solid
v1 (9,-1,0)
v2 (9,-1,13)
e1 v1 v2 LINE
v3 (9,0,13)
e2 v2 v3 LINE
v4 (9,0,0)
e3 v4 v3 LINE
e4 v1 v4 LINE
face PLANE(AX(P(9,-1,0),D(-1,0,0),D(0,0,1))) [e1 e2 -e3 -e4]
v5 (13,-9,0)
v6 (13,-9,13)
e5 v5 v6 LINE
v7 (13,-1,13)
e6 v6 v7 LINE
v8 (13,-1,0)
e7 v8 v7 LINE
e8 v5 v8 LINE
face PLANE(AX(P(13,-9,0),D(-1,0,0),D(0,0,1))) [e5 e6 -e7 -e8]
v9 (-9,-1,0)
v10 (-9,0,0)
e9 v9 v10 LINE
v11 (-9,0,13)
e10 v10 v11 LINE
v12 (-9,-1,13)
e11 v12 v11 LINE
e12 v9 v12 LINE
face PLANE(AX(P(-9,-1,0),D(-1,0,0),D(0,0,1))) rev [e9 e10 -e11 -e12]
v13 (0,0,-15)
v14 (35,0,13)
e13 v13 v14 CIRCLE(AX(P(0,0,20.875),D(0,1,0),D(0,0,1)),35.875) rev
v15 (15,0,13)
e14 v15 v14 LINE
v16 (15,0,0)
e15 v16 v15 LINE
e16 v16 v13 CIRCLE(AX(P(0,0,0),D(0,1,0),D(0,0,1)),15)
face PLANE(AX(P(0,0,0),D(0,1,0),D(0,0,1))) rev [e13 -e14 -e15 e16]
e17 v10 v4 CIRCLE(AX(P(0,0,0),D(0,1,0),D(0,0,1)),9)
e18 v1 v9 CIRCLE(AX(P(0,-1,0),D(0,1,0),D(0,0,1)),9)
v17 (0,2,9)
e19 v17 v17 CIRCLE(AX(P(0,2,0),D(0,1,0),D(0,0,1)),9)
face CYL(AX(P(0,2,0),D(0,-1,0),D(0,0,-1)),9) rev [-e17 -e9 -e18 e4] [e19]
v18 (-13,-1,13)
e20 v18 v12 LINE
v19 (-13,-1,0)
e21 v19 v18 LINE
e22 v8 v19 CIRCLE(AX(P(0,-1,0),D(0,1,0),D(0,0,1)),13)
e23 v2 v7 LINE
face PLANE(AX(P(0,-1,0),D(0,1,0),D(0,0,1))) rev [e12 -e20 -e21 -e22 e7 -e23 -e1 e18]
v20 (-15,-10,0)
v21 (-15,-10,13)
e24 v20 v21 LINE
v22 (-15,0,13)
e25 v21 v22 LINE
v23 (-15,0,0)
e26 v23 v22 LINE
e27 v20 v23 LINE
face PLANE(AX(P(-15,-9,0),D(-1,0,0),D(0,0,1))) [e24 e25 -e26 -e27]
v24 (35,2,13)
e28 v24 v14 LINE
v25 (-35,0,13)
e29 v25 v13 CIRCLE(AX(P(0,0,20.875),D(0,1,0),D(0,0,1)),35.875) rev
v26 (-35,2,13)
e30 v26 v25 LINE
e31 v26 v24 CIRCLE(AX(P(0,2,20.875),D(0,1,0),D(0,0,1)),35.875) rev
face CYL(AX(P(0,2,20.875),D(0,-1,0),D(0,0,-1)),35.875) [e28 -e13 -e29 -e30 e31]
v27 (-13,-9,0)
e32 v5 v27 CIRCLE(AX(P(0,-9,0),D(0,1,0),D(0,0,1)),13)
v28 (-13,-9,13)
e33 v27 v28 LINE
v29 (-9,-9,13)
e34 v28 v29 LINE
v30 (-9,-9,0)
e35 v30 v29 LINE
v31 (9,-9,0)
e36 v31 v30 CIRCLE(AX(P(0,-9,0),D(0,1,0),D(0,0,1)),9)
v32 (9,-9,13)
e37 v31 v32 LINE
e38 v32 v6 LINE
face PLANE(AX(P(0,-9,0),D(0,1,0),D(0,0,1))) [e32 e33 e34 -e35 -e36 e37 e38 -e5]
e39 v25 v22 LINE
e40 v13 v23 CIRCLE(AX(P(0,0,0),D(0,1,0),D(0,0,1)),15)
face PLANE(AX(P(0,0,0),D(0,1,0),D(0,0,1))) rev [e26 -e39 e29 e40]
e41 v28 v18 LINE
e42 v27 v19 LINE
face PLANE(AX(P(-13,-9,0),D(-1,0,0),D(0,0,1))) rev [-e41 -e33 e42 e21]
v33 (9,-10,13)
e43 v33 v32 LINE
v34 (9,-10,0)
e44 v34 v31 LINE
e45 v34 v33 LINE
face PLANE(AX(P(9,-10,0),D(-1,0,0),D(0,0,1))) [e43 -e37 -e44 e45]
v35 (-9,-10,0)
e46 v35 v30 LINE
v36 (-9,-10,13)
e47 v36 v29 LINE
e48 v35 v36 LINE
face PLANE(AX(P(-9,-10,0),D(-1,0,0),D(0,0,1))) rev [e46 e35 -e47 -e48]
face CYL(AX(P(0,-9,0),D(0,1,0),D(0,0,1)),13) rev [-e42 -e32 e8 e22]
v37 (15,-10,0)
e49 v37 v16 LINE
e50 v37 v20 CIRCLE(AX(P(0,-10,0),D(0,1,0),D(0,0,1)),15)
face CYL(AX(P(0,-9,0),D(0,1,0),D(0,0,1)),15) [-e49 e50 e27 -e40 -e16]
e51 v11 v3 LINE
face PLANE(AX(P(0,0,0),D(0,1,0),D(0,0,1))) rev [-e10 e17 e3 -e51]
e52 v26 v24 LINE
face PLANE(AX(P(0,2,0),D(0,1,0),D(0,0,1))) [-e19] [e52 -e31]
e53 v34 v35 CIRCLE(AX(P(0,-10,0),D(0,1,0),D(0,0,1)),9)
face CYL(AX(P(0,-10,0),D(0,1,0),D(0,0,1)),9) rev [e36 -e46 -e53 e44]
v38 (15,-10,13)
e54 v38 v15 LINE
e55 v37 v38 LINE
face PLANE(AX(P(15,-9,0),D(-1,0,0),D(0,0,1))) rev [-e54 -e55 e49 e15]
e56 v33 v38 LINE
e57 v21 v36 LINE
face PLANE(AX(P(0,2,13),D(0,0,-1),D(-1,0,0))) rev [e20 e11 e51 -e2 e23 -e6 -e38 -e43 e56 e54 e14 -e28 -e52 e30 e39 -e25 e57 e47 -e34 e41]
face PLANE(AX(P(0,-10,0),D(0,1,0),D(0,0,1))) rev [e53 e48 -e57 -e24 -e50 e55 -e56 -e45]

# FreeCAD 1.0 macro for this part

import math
import FreeCAD as App
import Part
import Sketcher

doc = App.newDocument("Part")
body = doc.addObject("PartDesign::Body", "Body")

sketch1 = body.newObject("Sketcher::SketchObject", "Sketch")
sketch1.AttachmentSupport = (doc.getObject("XZ_Plane"), [""])
sketch1.MapMode = "FlatFace"
sketch1.addGeometry(Part.LineSegment(App.Vector(-35, 13, 0), App.Vector(35, 13, 0)), False)
sketch1.addGeometry(Part.ArcOfCircle(Part.Circle(App.Vector(0, 21, 0), App.Vector(0, 0, 1), 36), math.radians(-167), math.radians(-13)), False)
sketch1.addGeometry(Part.Circle(App.Vector(0, 0, 0), App.Vector(0, 0, 1), 9), False)
sketch1.addConstraint(Sketcher.Constraint("Coincident", 0, 1, 1, 1))
sketch1.addConstraint(Sketcher.Constraint("Coincident", 1, 2, 0, 2))
sketch1.addConstraint(Sketcher.Constraint("Horizontal", 0))
sketch1.addConstraint(Sketcher.Constraint("Coincident", 2, 3, -1, 1))
sketch1.addConstraint(Sketcher.Constraint("PointOnObject", 1, 3, -2))
sketch1.addConstraint(Sketcher.Constraint("Diameter", 2, 18.0))
sketch1.addConstraint(Sketcher.Constraint("DistanceX", 0, 1, 0, 2, 70.0))
sketch1.addConstraint(Sketcher.Constraint("DistanceY", -1, 1, 0, 1, 13.0))
sketch1.addConstraint(Sketcher.Constraint("Radius", 1, 35.875))
pad1 = body.newObject("PartDesign::Pad", "Pad")
pad1.Profile = sketch1
pad1.Length = 2
pad1.Reversed = True

sketch2 = body.newObject("Sketcher::SketchObject", "Sketch001")
sketch2.AttachmentSupport = (doc.getObject("XZ_Plane"), [""])
sketch2.MapMode = "FlatFace"
sketch2.addGeometry(Part.ArcOfCircle(Part.Circle(App.Vector(0, 0, 0), App.Vector(0, 0, 1), 13), math.radians(-90), math.radians(0)), False)
sketch2.addGeometry(Part.LineSegment(App.Vector(13, 0, 0), App.Vector(13, 13, 0)), False)
sketch2.addGeometry(Part.LineSegment(App.Vector(13, 13, 0), App.Vector(15, 13, 0)), False)
sketch2.addGeometry(Part.LineSegment(App.Vector(15, 13, 0), App.Vector(15, 0, 0)), False)
sketch2.addGeometry(Part.ArcOfCircle(Part.Circle(App.Vector(0, 0, 0), App.Vector(0, 0, 1), 15), math.radians(-51), math.radians(0)), False)
sketch2.addGeometry(Part.ArcOfCircle(Part.Circle(App.Vector(0, 0, 0), App.Vector(0, 0, 1), 15), math.radians(-90), math.radians(-51)), False)
sketch2.addGeometry(Part.ArcOfCircle(Part.Circle(App.Vector(0, 0, 0), App.Vector(0, 0, 1), 15), math.radians(-129), math.radians(-90)), False)
sketch2.addGeometry(Part.ArcOfCircle(Part.Circle(App.Vector(0, 0, 0), App.Vector(0, 0, 1), 15), math.radians(180), math.radians(231)), False)
sketch2.addGeometry(Part.LineSegment(App.Vector(-15, 0, 0), App.Vector(-15, 13, 0)), False)
sketch2.addGeometry(Part.LineSegment(App.Vector(-15, 13, 0), App.Vector(-13, 13, 0)), False)
sketch2.addGeometry(Part.LineSegment(App.Vector(-13, 13, 0), App.Vector(-13, 0, 0)), False)
sketch2.addGeometry(Part.ArcOfCircle(Part.Circle(App.Vector(0, 0, 0), App.Vector(0, 0, 1), 13), math.radians(180), math.radians(270)), False)
sketch2.addConstraint(Sketcher.Constraint("Tangent", 0, 2, 1, 1))
sketch2.addConstraint(Sketcher.Constraint("Coincident", 1, 2, 2, 1))
sketch2.addConstraint(Sketcher.Constraint("Coincident", 2, 2, 3, 1))
sketch2.addConstraint(Sketcher.Constraint("Tangent", 3, 2, 4, 2))
sketch2.addConstraint(Sketcher.Constraint("Tangent", 4, 1, 5, 2))
sketch2.addConstraint(Sketcher.Constraint("Tangent", 5, 1, 6, 2))
sketch2.addConstraint(Sketcher.Constraint("Tangent", 6, 1, 7, 2))
sketch2.addConstraint(Sketcher.Constraint("Tangent", 7, 1, 8, 1))
sketch2.addConstraint(Sketcher.Constraint("Coincident", 8, 2, 9, 1))
sketch2.addConstraint(Sketcher.Constraint("Coincident", 9, 2, 10, 1))
sketch2.addConstraint(Sketcher.Constraint("Tangent", 10, 2, 11, 1))
sketch2.addConstraint(Sketcher.Constraint("Tangent", 11, 2, 0, 1))
sketch2.addConstraint(Sketcher.Constraint("Vertical", 1))
sketch2.addConstraint(Sketcher.Constraint("Horizontal", 2))
sketch2.addConstraint(Sketcher.Constraint("Vertical", 3))
sketch2.addConstraint(Sketcher.Constraint("Vertical", 8))
sketch2.addConstraint(Sketcher.Constraint("Horizontal", 9))
sketch2.addConstraint(Sketcher.Constraint("Vertical", 10))
sketch2.addConstraint(Sketcher.Constraint("Coincident", 0, 3, -1, 1))
sketch2.addConstraint(Sketcher.Constraint("Coincident", 4, 3, -1, 1))
sketch2.addConstraint(Sketcher.Constraint("Coincident", 6, 3, -1, 1))
sketch2.addConstraint(Sketcher.Constraint("Equal", 6, 7))
sketch2.addConstraint(Sketcher.Constraint("Equal", 0, 11))
sketch2.addConstraint(Sketcher.Constraint("PointOnObject", 5, 1, -2))
sketch2.addConstraint(Sketcher.Constraint("PointOnObject", 11, 2, -2))
sketch2.addConstraint(Sketcher.Constraint("Horizontal", 4, 1, 6, 1))
sketch2.addConstraint(Sketcher.Constraint("Horizontal", 2, 2, 8, 2))
sketch2.addConstraint(Sketcher.Constraint("Radius", 0, 13.0))
sketch2.addConstraint(Sketcher.Constraint("Radius", 4, 15.0))
sketch2.addConstraint(Sketcher.Constraint("DistanceY", 1, 1, 1, 2, 13.0))
sketch2.addConstraint(Sketcher.Constraint("DistanceX", -1, 1, 4, 1, 9.437962))
pad2 = body.newObject("PartDesign::Pad", "Pad001")
pad2.Profile = sketch2
pad2.Length = 9

sketch3 = body.newObject("Sketcher::SketchObject", "Sketch002")
sketch3.AttachmentSupport = (doc.getObject("XZ_Plane"), [""])
sketch3.MapMode = "FlatFace"
sketch3.addGeometry(Part.ArcOfCircle(Part.Circle(App.Vector(0, 0, 0), App.Vector(0, 0, 1), 13), math.radians(180), math.radians(270)), False)
sketch3.addGeometry(Part.LineSegment(App.Vector(-13, 0, 0), App.Vector(-13, 13, 0)), False)
sketch3.addGeometry(Part.LineSegment(App.Vector(-13, 13, 0), App.Vector(-9, 13, 0)), False)
sketch3.addGeometry(Part.LineSegment(App.Vector(-9, 13, 0), App.Vector(-9, 0, 0)), False)
sketch3.addGeometry(Part.ArcOfCircle(Part.Circle(App.Vector(0, 0, 0), App.Vector(0, 0, 1), 9), math.radians(180), math.radians(360)), False)
sketch3.addGeometry(Part.LineSegment(App.Vector(9, 0, 0), App.Vector(9, 13, 0)), False)
sketch3.addGeometry(Part.LineSegment(App.Vector(9, 13, 0), App.Vector(13, 13, 0)), False)
sketch3.addGeometry(Part.LineSegment(App.Vector(13, 13, 0), App.Vector(13, 0, 0)), False)
sketch3.addGeometry(Part.ArcOfCircle(Part.Circle(App.Vector(0, 0, 0), App.Vector(0, 0, 1), 13), math.radians(-90), math.radians(0)), False)
sketch3.addConstraint(Sketcher.Constraint("Tangent", 0, 1, 1, 1))
sketch3.addConstraint(Sketcher.Constraint("Coincident", 1, 2, 2, 1))
sketch3.addConstraint(Sketcher.Constraint("Coincident", 2, 2, 3, 1))
sketch3.addConstraint(Sketcher.Constraint("Tangent", 3, 2, 4, 1))
sketch3.addConstraint(Sketcher.Constraint("Tangent", 4, 2, 5, 1))
sketch3.addConstraint(Sketcher.Constraint("Coincident", 5, 2, 6, 1))
sketch3.addConstraint(Sketcher.Constraint("Coincident", 6, 2, 7, 1))
sketch3.addConstraint(Sketcher.Constraint("Tangent", 7, 2, 8, 2))
sketch3.addConstraint(Sketcher.Constraint("Tangent", 8, 1, 0, 2))
sketch3.addConstraint(Sketcher.Constraint("Vertical", 1))
sketch3.addConstraint(Sketcher.Constraint("Horizontal", 2))
sketch3.addConstraint(Sketcher.Constraint("Vertical", 3))
sketch3.addConstraint(Sketcher.Constraint("Vertical", 5))
sketch3.addConstraint(Sketcher.Constraint("Horizontal", 6))
sketch3.addConstraint(Sketcher.Constraint("Vertical", 7))
sketch3.addConstraint(Sketcher.Constraint("Coincident", 0, 3, -1, 1))
sketch3.addConstraint(Sketcher.Constraint("Coincident", 4, 3, -1, 1))
sketch3.addConstraint(Sketcher.Constraint("Equal", 0, 8))
sketch3.addConstraint(Sketcher.Constraint("PointOnObject", 8, 1, -2))
sketch3.addConstraint(Sketcher.Constraint("Horizontal", 2, 2, 5, 2))
sketch3.addConstraint(Sketcher.Constraint("Radius", 0, 13.0))
sketch3.addConstraint(Sketcher.Constraint("Radius", 4, 9.0))
sketch3.addConstraint(Sketcher.Constraint("DistanceY", 1, 1, 1, 2, 13.0))
pad3 = body.newObject("PartDesign::Pad", "Pad002")
pad3.Profile = sketch3
pad3.Length = 1

sketch4 = body.newObject("Sketcher::SketchObject", "Sketch003")
sketch4.AttachmentSupport = (doc.getObject("XZ_Plane"), [""])
sketch4.MapMode = "FlatFace"
sketch4.AttachmentOffset = App.Placement(App.Vector(0, 0, 9), App.Rotation())
sketch4.addGeometry(Part.LineSegment(App.Vector(15, 13, 0), App.Vector(15, 0, 0)), False)
sketch4.addGeometry(Part.ArcOfCircle(Part.Circle(App.Vector(0, 0, 0), App.Vector(0, 0, 1), 15), math.radians(-51), math.radians(0)), False)
sketch4.addGeometry(Part.ArcOfCircle(Part.Circle(App.Vector(0, 0, 0), App.Vector(0, 0, 1), 15), math.radians(-90), math.radians(-51)), False)
sketch4.addGeometry(Part.ArcOfCircle(Part.Circle(App.Vector(0, 0, 0), App.Vector(0, 0, 1), 15), math.radians(-129), math.radians(-90)), False)
sketch4.addGeometry(Part.ArcOfCircle(Part.Circle(App.Vector(0, 0, 0), App.Vector(0, 0, 1), 15), math.radians(180), math.radians(231)), False)
sketch4.addGeometry(Part.LineSegment(App.Vector(-15, 0, 0), App.Vector(-15, 13, 0)), False)
sketch4.addGeometry(Part.LineSegment(App.Vector(-15, 13, 0), App.Vector(-9, 13, 0)), False)
sketch4.addGeometry(Part.LineSegment(App.Vector(-9, 13, 0), App.Vector(-9, 0, 0)), False)
sketch4.addGeometry(Part.ArcOfCircle(Part.Circle(App.Vector(0, 0, 0), App.Vector(0, 0, 1), 9), math.radians(180), math.radians(360)), False)
sketch4.addGeometry(Part.LineSegment(App.Vector(9, 0, 0), App.Vector(9, 13, 0)), False)
sketch4.addGeometry(Part.LineSegment(App.Vector(9, 13, 0), App.Vector(15, 13, 0)), False)
sketch4.addConstraint(Sketcher.Constraint("Tangent", 0, 2, 1, 2))
sketch4.addConstraint(Sketcher.Constraint("Tangent", 1, 1, 2, 2))
sketch4.addConstraint(Sketcher.Constraint("Tangent", 2, 1, 3, 2))
sketch4.addConstraint(Sketcher.Constraint("Tangent", 3, 1, 4, 2))
sketch4.addConstraint(Sketcher.Constraint("Tangent", 4, 1, 5, 1))
sketch4.addConstraint(Sketcher.Constraint("Coincident", 5, 2, 6, 1))
sketch4.addConstraint(Sketcher.Constraint("Coincident", 6, 2, 7, 1))
sketch4.addConstraint(Sketcher.Constraint("Tangent", 7, 2, 8, 1))
sketch4.addConstraint(Sketcher.Constraint("Tangent", 8, 2, 9, 1))
sketch4.addConstraint(Sketcher.Constraint("Coincident", 9, 2, 10, 1))
sketch4.addConstraint(Sketcher.Constraint("Coincident", 10, 2, 0, 1))
sketch4.addConstraint(Sketcher.Constraint("Vertical", 0))
sketch4.addConstraint(Sketcher.Constraint("Vertical", 5))
sketch4.addConstraint(Sketcher.Constraint("Horizontal", 6))
sketch4.addConstraint(Sketcher.Constraint("Vertical", 7))
sketch4.addConstraint(Sketcher.Constraint("Vertical", 9))
sketch4.addConstraint(Sketcher.Constraint("Horizontal", 10))
sketch4.addConstraint(Sketcher.Constraint("Coincident", 1, 3, -1, 1))
sketch4.addConstraint(Sketcher.Constraint("Coincident", 3, 3, -1, 1))
sketch4.addConstraint(Sketcher.Constraint("Coincident", 8, 3, -1, 1))
sketch4.addConstraint(Sketcher.Constraint("Equal", 3, 4))
sketch4.addConstraint(Sketcher.Constraint("PointOnObject", 2, 1, -2))
sketch4.addConstraint(Sketcher.Constraint("Horizontal", 1, 1, 3, 1))
sketch4.addConstraint(Sketcher.Constraint("Horizontal", 6, 2, 9, 2))
sketch4.addConstraint(Sketcher.Constraint("Radius", 1, 15.0))
sketch4.addConstraint(Sketcher.Constraint("Radius", 8, 9.0))
sketch4.addConstraint(Sketcher.Constraint("DistanceY", 0, 2, 0, 1, 13.0))
sketch4.addConstraint(Sketcher.Constraint("DistanceX", -1, 1, 1, 1, 9.437962))
pad4 = body.newObject("PartDesign::Pad", "Pad003")
pad4.Profile = sketch4
pad4.Length = 1

doc.recompute()
